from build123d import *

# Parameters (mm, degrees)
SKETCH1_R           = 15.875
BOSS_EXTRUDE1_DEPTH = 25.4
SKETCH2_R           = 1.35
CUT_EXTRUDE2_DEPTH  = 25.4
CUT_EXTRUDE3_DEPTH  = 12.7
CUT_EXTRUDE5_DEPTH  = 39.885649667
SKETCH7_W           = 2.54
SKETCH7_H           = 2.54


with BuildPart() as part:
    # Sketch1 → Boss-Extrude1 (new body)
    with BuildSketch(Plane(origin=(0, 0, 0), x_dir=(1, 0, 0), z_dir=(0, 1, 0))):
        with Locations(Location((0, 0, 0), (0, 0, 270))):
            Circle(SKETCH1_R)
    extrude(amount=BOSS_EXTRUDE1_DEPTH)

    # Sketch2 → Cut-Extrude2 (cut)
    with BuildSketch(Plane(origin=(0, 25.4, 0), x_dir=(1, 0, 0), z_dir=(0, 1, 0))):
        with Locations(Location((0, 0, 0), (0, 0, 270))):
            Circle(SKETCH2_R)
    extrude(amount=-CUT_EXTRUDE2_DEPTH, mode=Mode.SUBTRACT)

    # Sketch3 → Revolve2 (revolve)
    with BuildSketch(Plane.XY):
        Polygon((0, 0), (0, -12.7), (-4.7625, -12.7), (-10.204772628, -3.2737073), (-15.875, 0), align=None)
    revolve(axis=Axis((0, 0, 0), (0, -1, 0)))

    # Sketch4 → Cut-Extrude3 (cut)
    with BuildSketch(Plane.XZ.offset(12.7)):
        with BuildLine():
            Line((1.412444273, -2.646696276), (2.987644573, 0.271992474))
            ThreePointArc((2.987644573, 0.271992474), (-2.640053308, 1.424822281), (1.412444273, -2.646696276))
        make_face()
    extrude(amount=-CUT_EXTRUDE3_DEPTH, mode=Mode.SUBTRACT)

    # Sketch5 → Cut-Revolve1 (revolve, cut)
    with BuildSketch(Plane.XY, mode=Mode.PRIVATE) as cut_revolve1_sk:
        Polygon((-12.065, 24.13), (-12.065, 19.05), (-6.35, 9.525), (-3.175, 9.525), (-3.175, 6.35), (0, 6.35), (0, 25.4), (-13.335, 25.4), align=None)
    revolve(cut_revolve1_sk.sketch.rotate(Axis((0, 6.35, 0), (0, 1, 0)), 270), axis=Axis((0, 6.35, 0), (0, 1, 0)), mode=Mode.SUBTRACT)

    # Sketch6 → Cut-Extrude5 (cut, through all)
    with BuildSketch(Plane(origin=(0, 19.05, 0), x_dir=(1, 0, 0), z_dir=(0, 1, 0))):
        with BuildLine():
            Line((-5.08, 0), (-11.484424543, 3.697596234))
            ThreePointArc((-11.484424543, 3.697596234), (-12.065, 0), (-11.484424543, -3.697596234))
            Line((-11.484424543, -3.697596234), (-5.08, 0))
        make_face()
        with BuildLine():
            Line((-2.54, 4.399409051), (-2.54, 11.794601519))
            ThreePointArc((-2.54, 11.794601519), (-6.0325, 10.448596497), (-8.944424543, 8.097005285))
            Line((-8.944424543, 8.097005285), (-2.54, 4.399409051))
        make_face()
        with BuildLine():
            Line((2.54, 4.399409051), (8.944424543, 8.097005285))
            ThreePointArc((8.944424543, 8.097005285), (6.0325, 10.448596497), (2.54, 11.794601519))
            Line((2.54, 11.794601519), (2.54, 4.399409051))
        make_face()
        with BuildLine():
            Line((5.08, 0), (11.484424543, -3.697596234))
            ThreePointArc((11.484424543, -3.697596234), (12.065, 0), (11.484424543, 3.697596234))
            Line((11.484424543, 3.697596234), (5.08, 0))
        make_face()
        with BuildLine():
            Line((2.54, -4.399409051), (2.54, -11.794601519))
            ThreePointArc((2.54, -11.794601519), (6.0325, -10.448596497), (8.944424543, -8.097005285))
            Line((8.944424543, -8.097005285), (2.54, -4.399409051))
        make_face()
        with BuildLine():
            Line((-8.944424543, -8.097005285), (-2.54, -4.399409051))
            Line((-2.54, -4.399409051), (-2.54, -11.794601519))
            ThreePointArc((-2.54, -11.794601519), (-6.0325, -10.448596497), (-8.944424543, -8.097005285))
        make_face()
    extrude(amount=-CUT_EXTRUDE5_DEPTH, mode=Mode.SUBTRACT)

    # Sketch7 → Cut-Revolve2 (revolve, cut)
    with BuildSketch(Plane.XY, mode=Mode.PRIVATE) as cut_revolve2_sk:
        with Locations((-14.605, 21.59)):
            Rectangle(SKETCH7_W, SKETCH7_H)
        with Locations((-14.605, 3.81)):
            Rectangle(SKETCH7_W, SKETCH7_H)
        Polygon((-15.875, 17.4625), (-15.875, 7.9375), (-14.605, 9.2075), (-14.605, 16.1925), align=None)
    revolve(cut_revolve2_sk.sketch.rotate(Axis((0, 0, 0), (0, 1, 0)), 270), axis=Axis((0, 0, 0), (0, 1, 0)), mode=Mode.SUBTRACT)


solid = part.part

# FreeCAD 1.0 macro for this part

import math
import FreeCAD as App
import Part
import Sketcher
Q = App.Units.Quantity

doc = App.newDocument("Part")
body = doc.addObject("PartDesign::Body", "Body")

sketch1 = doc.addObject("Sketcher::SketchObject", "Sketch")
body.addObject(sketch1)
sketch1.AttachmentSupport = (doc.XZ_Plane, [""])
sketch1.MapMode = "FlatFace"
sketch1.addGeometry(Part.Circle(App.Vector(0, 0, 0), App.Vector(0, 0, 1), 15.875), False)
sketch1.addConstraint(Sketcher.Constraint("Coincident", 0, 3, -1, 1))
sketch1.addConstraint(Sketcher.Constraint("Diameter", 0, Q("1.25 in")))
pad1 = doc.addObject("PartDesign::Pad", "Pad")
body.addObject(pad1)
pad1.Profile = sketch1
pad1.Length = Q("1 in")
pad1.Reversed = True

sketch2 = doc.addObject("Sketcher::SketchObject", "Sketch001")
body.addObject(sketch2)
sketch2.AttachmentSupport = (doc.XZ_Plane, [""])
sketch2.MapMode = "FlatFace"
sketch2.AttachmentOffset = App.Placement(App.Vector(0, 0, -1 * 25.4), App.Rotation())
sketch2.addGeometry(Part.Circle(App.Vector(0, 0, 0), App.Vector(0, 0, 1), 1.35), False)
sketch2.addConstraint(Sketcher.Constraint("Coincident", 0, 3, -1, 1))
sketch2.addConstraint(Sketcher.Constraint("Diameter", 0, 2.7))
pocket1 = doc.addObject("PartDesign::Pocket", "Pocket")
body.addObject(pocket1)
pocket1.Profile = sketch2
pocket1.Length = Q("1 in")
pocket1.Reversed = True

sketch3 = doc.addObject("Sketcher::SketchObject", "Sketch002")
body.addObject(sketch3)
sketch3.AttachmentSupport = (doc.XY_Plane, [""])
sketch3.MapMode = "FlatFace"
sketch3.addGeometry(Part.LineSegment(App.Vector(0, -12.7, 0), App.Vector(0, 0, 0)), False)
sketch3.addGeometry(Part.LineSegment(App.Vector(0, 0, 0), App.Vector(-15.875, 0, 0)), False)
sketch3.addGeometry(Part.LineSegment(App.Vector(-15.875, 0, 0), App.Vector(-10.204773, -3.273707, 0)), False)
sketch3.addGeometry(Part.LineSegment(App.Vector(-10.204773, -3.273707, 0), App.Vector(-4.7625, -12.7, 0)), False)
sketch3.addGeometry(Part.LineSegment(App.Vector(-4.7625, -12.7, 0), App.Vector(0, -12.7, 0)), False)
sketch3.addConstraint(Sketcher.Constraint("Coincident", 0, 2, 1, 1))
sketch3.addConstraint(Sketcher.Constraint("Coincident", 1, 2, 2, 1))
sketch3.addConstraint(Sketcher.Constraint("Coincident", 2, 2, 3, 1))
sketch3.addConstraint(Sketcher.Constraint("Coincident", 3, 2, 4, 1))
sketch3.addConstraint(Sketcher.Constraint("Coincident", 4, 2, 0, 1))
sketch3.addConstraint(Sketcher.Constraint("Vertical", 0))
sketch3.addConstraint(Sketcher.Constraint("Horizontal", 1))
sketch3.addConstraint(Sketcher.Constraint("Horizontal", 4))
sketch3.addConstraint(Sketcher.Constraint("Coincident", 0, 2, -1, 1))
sketch3.addConstraint(Sketcher.Constraint("DistanceY", 0, 1, 0, 2, Q("0.5 in")))
sketch3.addConstraint(Sketcher.Constraint("Angle", 2, Q("-30 deg")))
sketch3.addConstraint(Sketcher.Constraint("Angle", 3, Q("-60 deg")))
sketch3.addConstraint(Sketcher.Constraint("DistanceX", 1, 2, 1, 1, Q("0.625 in")))
sketch3.addConstraint(Sketcher.Constraint("DistanceX", 4, 1, 4, 2, Q("0.1875 in")))
revolution = doc.addObject("PartDesign::Revolution", "Revolution")
body.addObject(revolution)
revolution.Profile = sketch3
revolution.ReferenceAxis = (sketch3, ["V_Axis"])
revolution.Angle = 360

sketch4 = doc.addObject("Sketcher::SketchObject", "Sketch003")
body.addObject(sketch4)
sketch4.AttachmentSupport = (doc.XZ_Plane, [""])
sketch4.MapMode = "FlatFace"
sketch4.AttachmentOffset = App.Placement(App.Vector(0, 0, 0.5 * 25.4), App.Rotation())
sketch4.addGeometry(Part.LineSegment(App.Vector(1.412444, -2.646696, 0), App.Vector(2.987645, 0.271992, 0)), False)
sketch4.addGeometry(Part.ArcOfCircle(Part.Circle(App.Vector(0, 0, 0), App.Vector(0, 0, 1), 3), math.radians(5.201817), math.radians(298.087197)), False)
sketch4.addConstraint(Sketcher.Constraint("Coincident", 0, 1, 1, 2))
sketch4.addConstraint(Sketcher.Constraint("Coincident", 1, 1, 0, 2))
sketch4.addConstraint(Sketcher.Constraint("Coincident", 1, 3, -1, 1))
sketch4.addConstraint(Sketcher.Constraint("Radius", 1, 3.0))
sketch4.addConstraint(Sketcher.Constraint("DistanceX", 0, 1, 1, 1, 1.5752))
sketch4.addConstraint(Sketcher.Constraint("DistanceY", 0, 1, 1, 1, 2.918689))
pocket2 = doc.addObject("PartDesign::Pocket", "Pocket001")
body.addObject(pocket2)
pocket2.Profile = sketch4
pocket2.Length = Q("0.5 in")

sketch5 = doc.addObject("Sketcher::SketchObject", "Sketch004")
body.addObject(sketch5)
sketch5.AttachmentSupport = (doc.XY_Plane, [""])
sketch5.MapMode = "FlatFace"
sketch5.addGeometry(Part.LineSegment(App.Vector(-12.065, 24.13, 0), App.Vector(-12.065, 19.05, 0)), False)
sketch5.addGeometry(Part.LineSegment(App.Vector(-12.065, 19.05, 0), App.Vector(-6.35, 9.525, 0)), False)
sketch5.addGeometry(Part.LineSegment(App.Vector(-6.35, 9.525, 0), App.Vector(-3.175, 9.525, 0)), False)
sketch5.addGeometry(Part.LineSegment(App.Vector(-3.175, 9.525, 0), App.Vector(-3.175, 6.35, 0)), False)
sketch5.addGeometry(Part.LineSegment(App.Vector(-3.175, 6.35, 0), App.Vector(0, 6.35, 0)), False)
sketch5.addGeometry(Part.LineSegment(App.Vector(0, 6.35, 0), App.Vector(0, 25.4, 0)), False)
sketch5.addGeometry(Part.LineSegment(App.Vector(0, 25.4, 0), App.Vector(-13.335, 25.4, 0)), False)
sketch5.addGeometry(Part.LineSegment(App.Vector(-13.335, 25.4, 0), App.Vector(-12.065, 24.13, 0)), False)
sketch5.addConstraint(Sketcher.Constraint("Coincident", 0, 2, 1, 1))
sketch5.addConstraint(Sketcher.Constraint("Coincident", 1, 2, 2, 1))
sketch5.addConstraint(Sketcher.Constraint("Coincident", 2, 2, 3, 1))
sketch5.addConstraint(Sketcher.Constraint("Coincident", 3, 2, 4, 1))
sketch5.addConstraint(Sketcher.Constraint("Coincident", 4, 2, 5, 1))
sketch5.addConstraint(Sketcher.Constraint("Coincident", 5, 2, 6, 1))
sketch5.addConstraint(Sketcher.Constraint("Coincident", 6, 2, 7, 1))
sketch5.addConstraint(Sketcher.Constraint("Coincident", 7, 2, 0, 1))
sketch5.addConstraint(Sketcher.Constraint("Vertical", 0))
sketch5.addConstraint(Sketcher.Constraint("Horizontal", 2))
sketch5.addConstraint(Sketcher.Constraint("Vertical", 3))
sketch5.addConstraint(Sketcher.Constraint("Horizontal", 4))
sketch5.addConstraint(Sketcher.Constraint("Vertical", 5))
sketch5.addConstraint(Sketcher.Constraint("Horizontal", 6))
sketch5.addConstraint(Sketcher.Constraint("PointOnObject", 4, 2, -2))
sketch5.addConstraint(Sketcher.Constraint("Equal", 2, 4))
sketch5.addConstraint(Sketcher.Constraint("Equal", 4, 3))
sketch5.addConstraint(Sketcher.Constraint("DistanceY", 0, 2, 0, 1, Q("0.2 in")))
sketch5.addConstraint(Sketcher.Constraint("DistanceY", -1, 1, 5, 2, Q("1 in")))
sketch5.addConstraint(Sketcher.Constraint("Angle", 7, Q("-45 deg")))
sketch5.addConstraint(Sketcher.Constraint("DistanceY", 5, 1, 5, 2, Q("0.75 in")))
sketch5.addConstraint(Sketcher.Constraint("DistanceY", 3, 2, 0, 2, Q("0.5 in")))
sketch5.addConstraint(Sketcher.Constraint("DistanceX", 6, 2, 2, 2, Q("0.4 in")))
sketch5.addConstraint(Sketcher.Constraint("DistanceX", 2, 1, 2, 2, Q("0.125 in")))
groove = doc.addObject("PartDesign::Groove", "Groove")
body.addObject(groove)
groove.Profile = sketch5
groove.ReferenceAxis = (sketch5, ["V_Axis"])
groove.Angle = 360

sketch6 = doc.addObject("Sketcher::SketchObject", "Sketch005")
body.addObject(sketch6)
sketch6.AttachmentSupport = (doc.XZ_Plane, [""])
sketch6.MapMode = "FlatFace"
sketch6.AttachmentOffset = App.Placement(App.Vector(0, 0, -0.75 * 25.4), App.Rotation())
sketch6.addGeometry(Part.LineSegment(App.Vector(-5.08, 0, 0), App.Vector(-11.484425, -3.697596, 0)), False)
sketch6.addGeometry(Part.ArcOfCircle(Part.Circle(App.Vector(0, 0, 0), App.Vector(0, 0, 1), 12.065), math.radians(162.153197), math.radians(197.846803)), False)
sketch6.addGeometry(Part.LineSegment(App.Vector(-11.484425, 3.697596, 0), App.Vector(-5.08, 0, 0)), False)
sketch6.addGeometry(Part.LineSegment(App.Vector(-2.54, -4.399409, 0), App.Vector(-2.54, -11.794602, 0)), False)
sketch6.addGeometry(Part.ArcOfCircle(Part.Circle(App.Vector(0, 0, 0), App.Vector(0, 0, 1), 12.065), math.radians(-137.846803), math.radians(-102.153197)), False)
sketch6.addGeometry(Part.LineSegment(App.Vector(-8.944425, -8.097005, 0), App.Vector(-2.54, -4.399409, 0)), False)
sketch6.addGeometry(Part.LineSegment(App.Vector(2.54, -4.399409, 0), App.Vector(8.944425, -8.097005, 0)), False)
sketch6.addGeometry(Part.ArcOfCircle(Part.Circle(App.Vector(0, 0, 0), App.Vector(0, 0, 1), 12.065), math.radians(-77.846803), math.radians(-42.153197)), False)
sketch6.addGeometry(Part.LineSegment(App.Vector(2.54, -11.794602, 0), App.Vector(2.54, -4.399409, 0)), False)
sketch6.addGeometry(Part.LineSegment(App.Vector(5.08, 0, 0), App.Vector(11.484425, 3.697596, 0)), False)
sketch6.addGeometry(Part.ArcOfCircle(Part.Circle(App.Vector(0, 0, 0), App.Vector(0, 0, 1), 12.065), math.radians(-17.846803), math.radians(17.846803)), False)
sketch6.addGeometry(Part.LineSegment(App.Vector(11.484425, -3.697596, 0), App.Vector(5.08, 0, 0)), False)
sketch6.addGeometry(Part.LineSegment(App.Vector(2.54, 4.399409, 0), App.Vector(2.54, 11.794602, 0)), False)
sketch6.addGeometry(Part.ArcOfCircle(Part.Circle(App.Vector(0, 0, 0), App.Vector(0, 0, 1), 12.065), math.radians(42.153197), math.radians(77.846803)), False)
sketch6.addGeometry(Part.LineSegment(App.Vector(8.944425, 8.097005, 0), App.Vector(2.54, 4.399409, 0)), False)
sketch6.addGeometry(Part.LineSegment(App.Vector(-2.54, 4.399409, 0), App.Vector(-8.944425, 8.097005, 0)), False)
sketch6.addGeometry(Part.ArcOfCircle(Part.Circle(App.Vector(0, 0, 0), App.Vector(0, 0, 1), 12.065), math.radians(102.153197), math.radians(137.846803)), False)
sketch6.addGeometry(Part.LineSegment(App.Vector(-2.54, 11.794602, 0), App.Vector(-2.54, 4.399409, 0)), False)
sketch6.addConstraint(Sketcher.Constraint("Coincident", 0, 2, 1, 2))
sketch6.addConstraint(Sketcher.Constraint("Coincident", 1, 1, 2, 1))
sketch6.addConstraint(Sketcher.Constraint("Coincident", 2, 2, 0, 1))
sketch6.addConstraint(Sketcher.Constraint("Coincident", 3, 2, 4, 2))
sketch6.addConstraint(Sketcher.Constraint("Coincident", 4, 1, 5, 1))
sketch6.addConstraint(Sketcher.Constraint("Coincident", 5, 2, 3, 1))
sketch6.addConstraint(Sketcher.Constraint("Coincident", 6, 2, 7, 2))
sketch6.addConstraint(Sketcher.Constraint("Coincident", 7, 1, 8, 1))
sketch6.addConstraint(Sketcher.Constraint("Coincident", 8, 2, 6, 1))
sketch6.addConstraint(Sketcher.Constraint("Coincident", 9, 2, 10, 2))
sketch6.addConstraint(Sketcher.Constraint("Coincident", 10, 1, 11, 1))
sketch6.addConstraint(Sketcher.Constraint("Coincident", 11, 2, 9, 1))
sketch6.addConstraint(Sketcher.Constraint("Coincident", 12, 2, 13, 2))
sketch6.addConstraint(Sketcher.Constraint("Coincident", 13, 1, 14, 1))
sketch6.addConstraint(Sketcher.Constraint("Coincident", 14, 2, 12, 1))
sketch6.addConstraint(Sketcher.Constraint("Coincident", 15, 2, 16, 2))
sketch6.addConstraint(Sketcher.Constraint("Coincident", 16, 1, 17, 1))
sketch6.addConstraint(Sketcher.Constraint("Coincident", 17, 2, 15, 1))
sketch6.addConstraint(Sketcher.Constraint("Vertical", 3))
sketch6.addConstraint(Sketcher.Constraint("Vertical", 8))
sketch6.addConstraint(Sketcher.Constraint("Vertical", 12))
sketch6.addConstraint(Sketcher.Constraint("Vertical", 17))
sketch6.addConstraint(Sketcher.Constraint("Coincident", 1, 3, -1, 1))
sketch6.addConstraint(Sketcher.Constraint("Coincident", 4, 3, -1, 1))
sketch6.addConstraint(Sketcher.Constraint("Coincident", 7, 3, -1, 1))
sketch6.addConstraint(Sketcher.Constraint("Coincident", 10, 3, -1, 1))
sketch6.addConstraint(Sketcher.Constraint("Coincident", 13, 3, -1, 1))
sketch6.addConstraint(Sketcher.Constraint("Coincident", 16, 3, -1, 1))
sketch6.addConstraint(Sketcher.Constraint("Equal", 1, 4))
sketch6.addConstraint(Sketcher.Constraint("Equal", 4, 7))
sketch6.addConstraint(Sketcher.Constraint("Equal", 7, 10))
sketch6.addConstraint(Sketcher.Constraint("Equal", 10, 13))
sketch6.addConstraint(Sketcher.Constraint("Equal", 13, 16))
sketch6.addConstraint(Sketcher.Constraint("Symmetric", 2, 2, 11, 2, -1, 1))
sketch6.addConstraint(Sketcher.Constraint("Symmetric", 5, 2, 14, 2, -1, 1))
sketch6.addConstraint(Sketcher.Constraint("Symmetric", 8, 2, 17, 2, -1, 1))
sketch6.addConstraint(Sketcher.Constraint("Symmetric", 5, 2, 8, 2, -2))
sketch6.addConstraint(Sketcher.Constraint("PointOnObject", 2, 2, -1))
sketch6.addConstraint(Sketcher.Constraint("Parallel", 0, 5))
sketch6.addConstraint(Sketcher.Constraint("Parallel", 2, 6))
sketch6.addConstraint(Sketcher.Constraint("Parallel", 5, 9))
sketch6.addConstraint(Sketcher.Constraint("Parallel", 6, 11))
sketch6.addConstraint(Sketcher.Constraint("Parallel", 9, 14))
sketch6.addConstraint(Sketcher.Constraint("Parallel", 11, 15))
sketch6.addConstraint(Sketcher.Constraint("Horizontal", 4, 1, 6, 2))
sketch6.addConstraint(Sketcher.Constraint("Equal", 2, 5))
sketch6.addConstraint(Sketcher.Constraint("Angle", 0, Q("-150 deg")))
sketch6.addConstraint(Sketcher.Constraint("Radius", 1, Q("0.475 in")))
sketch6.addConstraint(Sketcher.Constraint("DistanceX", 2, 2, -1, 1, Q("0.2 in")))
sketch6.addConstraint(Sketcher.Constraint("DistanceX", 3, 2, -1, 1, Q("0.1 in")))
pocket3 = doc.addObject("PartDesign::Pocket", "Pocket002")
body.addObject(pocket3)
pocket3.Profile = sketch6
pocket3.Type = "ThroughAll"
pocket3.Reversed = True

sketch7 = doc.addObject("Sketcher::SketchObject", "Sketch006")
body.addObject(sketch7)
sketch7.AttachmentSupport = (doc.XY_Plane, [""])
sketch7.MapMode = "FlatFace"
sketch7.addGeometry(Part.LineSegment(App.Vector(-15.875, 22.86, 0), App.Vector(-15.875, 20.32, 0)), False)
sketch7.addGeometry(Part.LineSegment(App.Vector(-15.875, 20.32, 0), App.Vector(-13.335, 20.32, 0)), False)
sketch7.addGeometry(Part.LineSegment(App.Vector(-13.335, 20.32, 0), App.Vector(-13.335, 22.86, 0)), False)
sketch7.addGeometry(Part.LineSegment(App.Vector(-13.335, 22.86, 0), App.Vector(-15.875, 22.86, 0)), False)
sketch7.addGeometry(Part.LineSegment(App.Vector(-15.875, 5.08, 0), App.Vector(-15.875, 2.54, 0)), False)
sketch7.addGeometry(Part.LineSegment(App.Vector(-15.875, 2.54, 0), App.Vector(-13.335, 2.54, 0)), False)
sketch7.addGeometry(Part.LineSegment(App.Vector(-13.335, 2.54, 0), App.Vector(-13.335, 5.08, 0)), False)
sketch7.addGeometry(Part.LineSegment(App.Vector(-13.335, 5.08, 0), App.Vector(-15.875, 5.08, 0)), False)
sketch7.addGeometry(Part.LineSegment(App.Vector(-15.875, 17.4625, 0), App.Vector(-15.875, 7.9375, 0)), False)
sketch7.addGeometry(Part.LineSegment(App.Vector(-15.875, 7.9375, 0), App.Vector(-14.605, 9.2075, 0)), False)
sketch7.addGeometry(Part.LineSegment(App.Vector(-14.605, 9.2075, 0), App.Vector(-14.605, 16.1925, 0)), False)
sketch7.addGeometry(Part.LineSegment(App.Vector(-14.605, 16.1925, 0), App.Vector(-15.875, 17.4625, 0)), False)
sketch7.addConstraint(Sketcher.Constraint("Coincident", 0, 2, 1, 1))
sketch7.addConstraint(Sketcher.Constraint("Coincident", 1, 2, 2, 1))
sketch7.addConstraint(Sketcher.Constraint("Coincident", 2, 2, 3, 1))
sketch7.addConstraint(Sketcher.Constraint("Coincident", 3, 2, 0, 1))
sketch7.addConstraint(Sketcher.Constraint("Coincident", 4, 2, 5, 1))
sketch7.addConstraint(Sketcher.Constraint("Coincident", 5, 2, 6, 1))
sketch7.addConstraint(Sketcher.Constraint("Coincident", 6, 2, 7, 1))
sketch7.addConstraint(Sketcher.Constraint("Coincident", 7, 2, 4, 1))
sketch7.addConstraint(Sketcher.Constraint("Coincident", 8, 2, 9, 1))
sketch7.addConstraint(Sketcher.Constraint("Coincident", 9, 2, 10, 1))
sketch7.addConstraint(Sketcher.Constraint("Coincident", 10, 2, 11, 1))
sketch7.addConstraint(Sketcher.Constraint("Coincident", 11, 2, 8, 1))
sketch7.addConstraint(Sketcher.Constraint("Vertical", 0))
sketch7.addConstraint(Sketcher.Constraint("Horizontal", 1))
sketch7.addConstraint(Sketcher.Constraint("Vertical", 2))
sketch7.addConstraint(Sketcher.Constraint("Horizontal", 3))
sketch7.addConstraint(Sketcher.Constraint("Vertical", 4))
sketch7.addConstraint(Sketcher.Constraint("Horizontal", 5))
sketch7.addConstraint(Sketcher.Constraint("Vertical", 6))
sketch7.addConstraint(Sketcher.Constraint("Horizontal", 7))
sketch7.addConstraint(Sketcher.Constraint("Vertical", 8))
sketch7.addConstraint(Sketcher.Constraint("Vertical", 10))
sketch7.addConstraint(Sketcher.Constraint("Perpendicular", 9, 11))
sketch7.addConstraint(Sketcher.Constraint("Vertical", 3, 2, 4, 2))
sketch7.addConstraint(Sketcher.Constraint("Vertical", 2, 2, 5, 2))
sketch7.addConstraint(Sketcher.Constraint("Vertical", 7, 2, 8, 2))
sketch7.addConstraint(Sketcher.Constraint("Equal", 7, 0))
sketch7.addConstraint(Sketcher.Constraint("Equal", 2, 4))
sketch7.addConstraint(Sketcher.Constraint("Equal", 9, 11))
sketch7.addConstraint(Sketcher.Constraint("DistanceX", 1, 1, 1, 2, Q("0.1 in")))
sketch7.addConstraint(Sketcher.Constraint("DistanceY", -1, 1, 0, 2, Q("0.8 in")))
sketch7.addConstraint(Sketcher.Constraint("DistanceY", -1, 1, 4, 2, Q("0.1 in")))
sketch7.addConstraint(Sketcher.Constraint("DistanceY", 8, 2, 8, 1, Q("0.375 in")))
sketch7.addConstraint(Sketcher.Constraint("DistanceY", 10, 1, 10, 2, Q("0.275 in")))
sketch7.addConstraint(Sketcher.Constraint("DistanceX", 0, 2, -1, 1, Q("0.625 in")))
sketch7.addConstraint(Sketcher.Constraint("DistanceY", -1, 1, 8, 2, Q("0.3125 in")))
groove2 = doc.addObject("PartDesign::Groove", "Groove001")
body.addObject(groove2)
groove2.Profile = sketch7
groove2.ReferenceAxis = (sketch7, ["V_Axis"])
groove2.Angle = 360

doc.recompute()
